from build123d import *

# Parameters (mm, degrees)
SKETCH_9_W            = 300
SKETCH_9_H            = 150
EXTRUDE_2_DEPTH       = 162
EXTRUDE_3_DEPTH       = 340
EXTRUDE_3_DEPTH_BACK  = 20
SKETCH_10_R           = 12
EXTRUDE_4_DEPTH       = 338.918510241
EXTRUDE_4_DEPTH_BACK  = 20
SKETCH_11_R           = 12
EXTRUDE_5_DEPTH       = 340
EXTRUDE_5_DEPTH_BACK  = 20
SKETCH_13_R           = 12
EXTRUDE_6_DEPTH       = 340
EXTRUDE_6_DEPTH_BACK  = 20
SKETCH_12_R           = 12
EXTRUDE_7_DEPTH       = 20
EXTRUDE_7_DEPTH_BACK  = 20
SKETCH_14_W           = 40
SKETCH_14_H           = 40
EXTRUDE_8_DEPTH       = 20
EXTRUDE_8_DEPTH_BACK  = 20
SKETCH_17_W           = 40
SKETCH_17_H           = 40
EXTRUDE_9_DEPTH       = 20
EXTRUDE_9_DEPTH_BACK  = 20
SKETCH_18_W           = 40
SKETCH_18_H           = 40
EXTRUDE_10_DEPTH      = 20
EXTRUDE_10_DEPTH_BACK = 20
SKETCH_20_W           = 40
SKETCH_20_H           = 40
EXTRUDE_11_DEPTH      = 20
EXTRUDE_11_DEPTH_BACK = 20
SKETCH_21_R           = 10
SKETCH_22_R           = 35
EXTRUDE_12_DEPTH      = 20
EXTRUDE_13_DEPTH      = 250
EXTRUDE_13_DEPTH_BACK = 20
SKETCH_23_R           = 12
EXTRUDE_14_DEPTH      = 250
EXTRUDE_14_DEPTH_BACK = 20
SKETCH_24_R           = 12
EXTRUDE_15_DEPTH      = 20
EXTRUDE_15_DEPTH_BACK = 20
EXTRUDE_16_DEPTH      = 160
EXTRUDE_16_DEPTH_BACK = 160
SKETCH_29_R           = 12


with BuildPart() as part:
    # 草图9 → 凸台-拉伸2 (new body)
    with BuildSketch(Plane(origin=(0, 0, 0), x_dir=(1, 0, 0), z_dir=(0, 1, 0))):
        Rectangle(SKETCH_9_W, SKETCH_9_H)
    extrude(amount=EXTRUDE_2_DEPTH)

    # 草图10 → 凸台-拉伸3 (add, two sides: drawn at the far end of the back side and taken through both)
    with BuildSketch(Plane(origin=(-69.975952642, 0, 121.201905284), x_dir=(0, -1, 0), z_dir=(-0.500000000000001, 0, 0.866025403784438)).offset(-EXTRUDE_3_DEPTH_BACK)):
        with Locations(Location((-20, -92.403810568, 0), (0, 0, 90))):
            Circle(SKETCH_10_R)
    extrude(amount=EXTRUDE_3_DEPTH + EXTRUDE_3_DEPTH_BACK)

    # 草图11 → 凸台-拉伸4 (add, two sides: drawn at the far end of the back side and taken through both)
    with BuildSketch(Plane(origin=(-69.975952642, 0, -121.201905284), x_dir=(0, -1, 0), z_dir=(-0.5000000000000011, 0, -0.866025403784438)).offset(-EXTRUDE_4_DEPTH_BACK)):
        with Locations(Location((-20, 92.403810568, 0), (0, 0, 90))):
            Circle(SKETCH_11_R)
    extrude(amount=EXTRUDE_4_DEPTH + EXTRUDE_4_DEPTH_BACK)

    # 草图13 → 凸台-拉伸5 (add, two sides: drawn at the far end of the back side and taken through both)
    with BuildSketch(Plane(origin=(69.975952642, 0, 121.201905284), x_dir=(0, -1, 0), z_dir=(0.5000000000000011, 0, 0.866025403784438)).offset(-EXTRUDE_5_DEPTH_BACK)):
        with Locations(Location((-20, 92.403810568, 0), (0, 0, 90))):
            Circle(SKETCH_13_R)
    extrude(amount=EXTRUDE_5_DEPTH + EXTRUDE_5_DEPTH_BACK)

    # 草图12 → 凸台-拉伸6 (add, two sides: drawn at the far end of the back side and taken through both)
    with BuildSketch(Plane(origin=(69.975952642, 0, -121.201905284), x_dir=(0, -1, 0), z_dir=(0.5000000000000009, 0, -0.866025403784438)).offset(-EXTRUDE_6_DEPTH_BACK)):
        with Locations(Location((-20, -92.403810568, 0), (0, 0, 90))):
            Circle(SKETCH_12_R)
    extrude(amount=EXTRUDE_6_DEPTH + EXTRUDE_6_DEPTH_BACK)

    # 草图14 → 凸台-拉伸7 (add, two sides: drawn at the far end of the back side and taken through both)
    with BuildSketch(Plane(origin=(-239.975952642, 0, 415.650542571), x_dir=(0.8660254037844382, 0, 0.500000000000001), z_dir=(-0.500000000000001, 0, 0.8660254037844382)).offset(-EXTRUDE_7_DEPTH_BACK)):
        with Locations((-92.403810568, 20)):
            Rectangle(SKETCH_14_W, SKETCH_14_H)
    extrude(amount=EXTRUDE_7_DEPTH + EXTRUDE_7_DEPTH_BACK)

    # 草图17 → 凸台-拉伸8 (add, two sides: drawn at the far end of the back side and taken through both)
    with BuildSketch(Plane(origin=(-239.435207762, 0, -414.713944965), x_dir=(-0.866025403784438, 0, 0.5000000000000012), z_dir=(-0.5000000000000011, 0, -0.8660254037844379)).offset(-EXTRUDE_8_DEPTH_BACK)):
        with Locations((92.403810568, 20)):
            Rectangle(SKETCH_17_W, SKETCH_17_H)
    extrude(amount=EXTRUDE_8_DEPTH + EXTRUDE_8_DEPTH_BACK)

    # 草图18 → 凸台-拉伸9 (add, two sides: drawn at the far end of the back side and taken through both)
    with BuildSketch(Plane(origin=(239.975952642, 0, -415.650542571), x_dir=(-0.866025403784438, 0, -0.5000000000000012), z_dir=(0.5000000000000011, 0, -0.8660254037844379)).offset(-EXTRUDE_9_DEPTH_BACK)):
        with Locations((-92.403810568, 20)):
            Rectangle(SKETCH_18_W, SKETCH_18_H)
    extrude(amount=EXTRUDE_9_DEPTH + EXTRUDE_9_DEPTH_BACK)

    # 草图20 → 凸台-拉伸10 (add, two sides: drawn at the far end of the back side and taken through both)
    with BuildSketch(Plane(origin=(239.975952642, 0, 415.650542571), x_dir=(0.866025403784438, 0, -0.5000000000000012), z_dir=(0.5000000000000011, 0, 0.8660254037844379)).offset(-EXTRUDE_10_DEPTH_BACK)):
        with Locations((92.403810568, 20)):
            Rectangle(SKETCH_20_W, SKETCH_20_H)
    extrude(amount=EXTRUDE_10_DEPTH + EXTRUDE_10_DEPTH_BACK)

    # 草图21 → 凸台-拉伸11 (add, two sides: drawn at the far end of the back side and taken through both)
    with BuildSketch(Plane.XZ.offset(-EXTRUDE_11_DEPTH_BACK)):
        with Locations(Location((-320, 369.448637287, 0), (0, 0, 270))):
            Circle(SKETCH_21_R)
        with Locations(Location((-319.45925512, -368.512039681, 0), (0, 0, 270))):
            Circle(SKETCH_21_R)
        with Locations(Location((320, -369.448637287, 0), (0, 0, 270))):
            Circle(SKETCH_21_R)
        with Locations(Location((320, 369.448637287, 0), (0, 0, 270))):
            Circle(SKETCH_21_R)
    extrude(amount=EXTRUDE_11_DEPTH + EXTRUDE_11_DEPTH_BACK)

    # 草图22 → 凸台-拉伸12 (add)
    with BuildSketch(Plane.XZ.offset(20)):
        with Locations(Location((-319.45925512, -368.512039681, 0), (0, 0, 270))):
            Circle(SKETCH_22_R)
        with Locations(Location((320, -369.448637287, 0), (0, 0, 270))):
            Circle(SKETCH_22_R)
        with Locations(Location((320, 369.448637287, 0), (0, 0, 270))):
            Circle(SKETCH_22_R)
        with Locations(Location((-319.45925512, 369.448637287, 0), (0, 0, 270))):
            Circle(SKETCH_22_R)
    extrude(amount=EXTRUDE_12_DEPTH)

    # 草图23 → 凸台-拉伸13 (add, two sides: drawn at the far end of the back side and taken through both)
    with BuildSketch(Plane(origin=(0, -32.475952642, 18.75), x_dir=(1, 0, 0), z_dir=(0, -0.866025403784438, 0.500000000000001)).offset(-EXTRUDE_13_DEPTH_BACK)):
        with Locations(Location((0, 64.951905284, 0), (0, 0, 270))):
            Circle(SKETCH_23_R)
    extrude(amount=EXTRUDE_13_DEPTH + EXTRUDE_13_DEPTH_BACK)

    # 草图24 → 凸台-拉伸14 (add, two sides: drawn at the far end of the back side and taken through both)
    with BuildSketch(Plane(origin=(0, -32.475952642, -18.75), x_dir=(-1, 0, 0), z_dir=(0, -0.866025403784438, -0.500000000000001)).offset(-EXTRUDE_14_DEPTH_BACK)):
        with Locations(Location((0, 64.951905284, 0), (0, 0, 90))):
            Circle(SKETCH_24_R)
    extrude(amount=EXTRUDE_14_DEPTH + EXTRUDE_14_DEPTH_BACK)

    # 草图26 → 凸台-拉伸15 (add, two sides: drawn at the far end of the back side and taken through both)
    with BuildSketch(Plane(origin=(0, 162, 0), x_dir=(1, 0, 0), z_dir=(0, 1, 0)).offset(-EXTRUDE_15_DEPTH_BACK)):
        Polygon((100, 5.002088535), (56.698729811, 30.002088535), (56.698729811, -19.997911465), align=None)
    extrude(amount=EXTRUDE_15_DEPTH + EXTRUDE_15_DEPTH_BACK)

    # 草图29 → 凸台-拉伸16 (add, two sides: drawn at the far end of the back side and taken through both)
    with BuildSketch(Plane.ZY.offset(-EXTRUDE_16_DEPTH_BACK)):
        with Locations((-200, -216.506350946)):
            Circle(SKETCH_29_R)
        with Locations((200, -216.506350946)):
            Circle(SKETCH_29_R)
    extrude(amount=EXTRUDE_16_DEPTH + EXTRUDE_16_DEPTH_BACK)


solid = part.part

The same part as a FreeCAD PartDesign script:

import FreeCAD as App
import Part
import Sketcher
from FreeCAD import Vector
Q = App.Units.Quantity

doc = App.newDocument("Part")
params = doc.addObject("Spreadsheet::Sheet", "Params")
for row, (alias, value) in enumerate([
    ("sketch1_width", "300 mm"),
    ("sketch1_height", "150 mm"),
    ("pad1_length", "162 mm"),
    ("sketch2_diameter", "24 mm"),
    ("pad2_length", "340 mm"),
    ("pad2_length2", "20 mm"),
    ("sketch3_diameter", "24 mm"),
    ("pad3_length", "338.91851 mm"),
    ("pad3_length2", "20 mm"),
    ("sketch4_diameter", "24 mm"),
    ("pad4_length", "340 mm"),
    ("pad4_length2", "20 mm"),
    ("sketch5_diameter", "24 mm"),
    ("pad5_length", "340 mm"),
    ("pad5_length2", "20 mm"),
    ("sketch6_width", "40 mm"),
    ("pad6_length", "20 mm"),
    ("pad6_length2", "20 mm"),
    ("sketch7_width", "40 mm"),
    ("pad7_length", "20 mm"),
    ("pad7_length2", "20 mm"),
    ("sketch8_width", "40 mm"),
    ("pad8_length", "20 mm"),
    ("pad8_length2", "20 mm"),
    ("sketch9_width", "40 mm"),
    ("pad9_length", "20 mm"),
    ("pad9_length2", "20 mm"),
    ("sketch10_diameter", "20 mm"),
    ("pad10_length", "20 mm"),
    ("pad10_length2", "20 mm"),
    ("sketch11_diameter", "70 mm"),
    ("pad11_length", "20 mm"),
    ("sketch12_diameter", "24 mm"),
    ("pad12_length", "250 mm"),
    ("pad12_length2", "20 mm"),
    ("sketch13_diameter", "24 mm"),
    ("pad13_length", "250 mm"),
    ("pad13_length2", "20 mm"),
    ("sketch14_height", "50 mm"),
    ("pad14_length", "20 mm"),
    ("pad14_length2", "20 mm"),
    ("sketch15_diameter", "24 mm"),
    ("pad15_length", "160 mm"),
    ("pad15_length2", "160 mm"),
], start=1):
    params.set(f"A{row}", alias)
    params.set(f"B{row}", "=" + value)
    params.setAlias(f"B{row}", alias)

body = doc.addObject("PartDesign::Body", "Body")

# Sketch on XZ plane
sketch1 = body.newObject("Sketcher::SketchObject", "Sketch")
sketch1.AttachmentSupport = (doc.getObject("XZ_Plane"), [""])
sketch1.MapMode = "FlatFace"
sketch1.addGeometry([
    Part.LineSegment(Vector(-150, -75, 0), Vector(-150, 75, 0)),
    Part.LineSegment(Vector(-150, 75, 0), Vector(150, 75, 0)),
    Part.LineSegment(Vector(150, 75, 0), Vector(150, -75, 0)),
    Part.LineSegment(Vector(150, -75, 0), Vector(-150, -75, 0)),
], False)
sketch1.addConstraint([
    Sketcher.Constraint("Coincident", 0, 2, 1, 1),
    Sketcher.Constraint("Coincident", 1, 2, 2, 1),
    Sketcher.Constraint("Coincident", 2, 2, 3, 1),
    Sketcher.Constraint("Coincident", 3, 2, 0, 1),
    Sketcher.Constraint("Vertical", 0),
    Sketcher.Constraint("Horizontal", 1),
    Sketcher.Constraint("Vertical", 2),
    Sketcher.Constraint("Horizontal", 3),
    Sketcher.Constraint("Symmetric", 0, 2, 2, 2, -1, 1),
    Sketcher.Constraint("DistanceX", 1, 1, 1, 2, Q("300 mm")),
    Sketcher.Constraint("DistanceY", 0, 1, 0, 2, Q("150 mm")),
])
sketch1.setExpression("Constraints[9]", "Params.sketch1_width")
sketch1.setExpression("Constraints[10]", "Params.sketch1_height")
pad1 = body.newObject("PartDesign::Pad", "Pad")
pad1.Profile = sketch1
pad1.setExpression("Length", "Params.pad1_length")
pad1.Reversed = True

# Sketch on an angled plane
sketch2 = body.newObject("Sketcher::SketchObject", "Sketch001")
sketch2.Placement = App.Placement(Vector(-69.975953, 0, 121.201905), App.Rotation(Vector(0, -1, 0), Vector(0.866025404, 0, 0.5), Vector(-0.5, 0, 0.866025404), "ZXY"))
sketch2.addGeometry(Part.Circle(Vector(-20, -92, 0), Vector(0, 0, 1), 12), False)
sketch2.addConstraint([
    Sketcher.Constraint("Diameter", 0, Q("24 mm")),
    Sketcher.Constraint("DistanceX", 0, 3, -1, 1, Q("20 mm")),
    Sketcher.Constraint("DistanceY", 0, 3, -1, 1, Q("92.403811 mm")),
])
sketch2.setExpression("Constraints[0]", "Params.sketch2_diameter")
pad2 = body.newObject("PartDesign::Pad", "Pad001")
pad2.Profile = sketch2
pad2.Type = "TwoLengths"
pad2.setExpression("Length", "Params.pad2_length")
pad2.setExpression("Length2", "Params.pad2_length2")

# Sketch on an angled plane
sketch3 = body.newObject("Sketcher::SketchObject", "Sketch002")
sketch3.Placement = App.Placement(Vector(-69.975953, 0, -121.201905), App.Rotation(Vector(0, -1, 0), Vector(-0.866025404, 0, 0.5), Vector(-0.5, 0, -0.866025404), "ZXY"))
sketch3.addGeometry(Part.Circle(Vector(-20, 92, 0), Vector(0, 0, 1), 12), False)
sketch3.addConstraint([
    Sketcher.Constraint("Diameter", 0, Q("24 mm")),
    Sketcher.Constraint("DistanceX", 0, 3, -1, 1, Q("20 mm")),
    Sketcher.Constraint("DistanceY", -1, 1, 0, 3, Q("92.403811 mm")),
])
sketch3.setExpression("Constraints[0]", "Params.sketch3_diameter")
pad3 = body.newObject("PartDesign::Pad", "Pad002")
pad3.Profile = sketch3
pad3.Type = "TwoLengths"
pad3.setExpression("Length", "Params.pad3_length")
pad3.setExpression("Length2", "Params.pad3_length2")

# Sketch on an angled plane
sketch4 = body.newObject("Sketcher::SketchObject", "Sketch003")
sketch4.Placement = App.Placement(Vector(69.975953, 0, 121.201905), App.Rotation(Vector(0, -1, 0), Vector(0.866025404, 0, -0.5), Vector(0.5, 0, 0.866025404), "ZXY"))
sketch4.addGeometry(Part.Circle(Vector(-20, 92, 0), Vector(0, 0, 1), 12), False)
sketch4.addConstraint([
    Sketcher.Constraint("Diameter", 0, Q("24 mm")),
    Sketcher.Constraint("DistanceX", 0, 3, -1, 1, Q("20 mm")),
    Sketcher.Constraint("DistanceY", -1, 1, 0, 3, Q("92.403811 mm")),
])
sketch4.setExpression("Constraints[0]", "Params.sketch4_diameter")
pad4 = body.newObject("PartDesign::Pad", "Pad003")
pad4.Profile = sketch4
pad4.Type = "TwoLengths"
pad4.setExpression("Length", "Params.pad4_length")
pad4.setExpression("Length2", "Params.pad4_length2")

# Sketch on an angled plane
sketch5 = body.newObject("Sketcher::SketchObject", "Sketch004")
sketch5.Placement = App.Placement(Vector(69.975953, 0, -121.201905), App.Rotation(Vector(0, -1, 0), Vector(-0.866025404, 0, -0.5), Vector(0.5, 0, -0.866025404), "ZXY"))
sketch5.addGeometry(Part.Circle(Vector(-20, -92, 0), Vector(0, 0, 1), 12), False)
sketch5.addConstraint([
    Sketcher.Constraint("Diameter", 0, Q("24 mm")),
    Sketcher.Constraint("DistanceX", 0, 3, -1, 1, Q("20 mm")),
    Sketcher.Constraint("DistanceY", 0, 3, -1, 1, Q("92.403811 mm")),
])
sketch5.setExpression("Constraints[0]", "Params.sketch5_diameter")
pad5 = body.newObject("PartDesign::Pad", "Pad004")
pad5.Profile = sketch5
pad5.Type = "TwoLengths"
pad5.setExpression("Length", "Params.pad5_length")
pad5.setExpression("Length2", "Params.pad5_length2")

# Sketch on an angled plane
sketch6 = body.newObject("Sketcher::SketchObject", "Sketch005")
sketch6.Placement = App.Placement(Vector(-239.975953, 0, 415.650543), App.Rotation(Vector(0.866025404, 0, 0.5), Vector(0, 1, 0), Vector(-0.5, 0, 0.866025404), "ZXY"))
sketch6.addGeometry([
    Part.LineSegment(Vector(-112, 40, 0), Vector(-112, 0, 0)),
    Part.LineSegment(Vector(-112, 0, 0), Vector(-72, 0, 0)),
    Part.LineSegment(Vector(-72, 0, 0), Vector(-72, 40, 0)),
    Part.LineSegment(Vector(-72, 40, 0), Vector(-112, 40, 0)),
], False)
sketch6.addConstraint([
    Sketcher.Constraint("Coincident", 0, 2, 1, 1),
    Sketcher.Constraint("Coincident", 1, 2, 2, 1),
    Sketcher.Constraint("Coincident", 2, 2, 3, 1),
    Sketcher.Constraint("Coincident", 3, 2, 0, 1),
    Sketcher.Constraint("Vertical", 0),
    Sketcher.Constraint("Horizontal", 1),
    Sketcher.Constraint("Vertical", 2),
    Sketcher.Constraint("Horizontal", 3),
    Sketcher.Constraint("PointOnObject", 0, 2, -1),
    Sketcher.Constraint("Equal", 3, 0),
    Sketcher.Constraint("DistanceX", 1, 1, 1, 2, Q("40 mm")),
    Sketcher.Constraint("DistanceX", 0, 2, -1, 1, Q("112.403811 mm")),
])
sketch6.setExpression("Constraints[10]", "Params.sketch6_width")
pad6 = body.newObject("PartDesign::Pad", "Pad005")
pad6.Profile = sketch6
pad6.Type = "TwoLengths"
pad6.setExpression("Length", "Params.pad6_length")
pad6.setExpression("Length2", "Params.pad6_length2")

# Sketch on an angled plane
sketch7 = body.newObject("Sketcher::SketchObject", "Sketch006")
sketch7.Placement = App.Placement(Vector(-239.435208, 0, -414.713945), App.Rotation(Vector(-0.866025404, 0, 0.5), Vector(0, 1, 0), Vector(-0.5, 0, -0.866025404), "ZXY"))
sketch7.addGeometry([
    Part.LineSegment(Vector(72, 40, 0), Vector(72, 0, 0)),
    Part.LineSegment(Vector(72, 0, 0), Vector(112, 0, 0)),
    Part.LineSegment(Vector(112, 0, 0), Vector(112, 40, 0)),
    Part.LineSegment(Vector(112, 40, 0), Vector(72, 40, 0)),
], False)
sketch7.addConstraint([
    Sketcher.Constraint("Coincident", 0, 2, 1, 1),
    Sketcher.Constraint("Coincident", 1, 2, 2, 1),
    Sketcher.Constraint("Coincident", 2, 2, 3, 1),
    Sketcher.Constraint("Coincident", 3, 2, 0, 1),
    Sketcher.Constraint("Vertical", 0),
    Sketcher.Constraint("Horizontal", 1),
    Sketcher.Constraint("Vertical", 2),
    Sketcher.Constraint("Horizontal", 3),
    Sketcher.Constraint("PointOnObject", 0, 2, -1),
    Sketcher.Constraint("Equal", 3, 0),
    Sketcher.Constraint("DistanceX", 1, 1, 1, 2, Q("40 mm")),
    Sketcher.Constraint("DistanceX", -1, 1, 0, 2, Q("72.403811 mm")),
])
sketch7.setExpression("Constraints[10]", "Params.sketch7_width")
pad7 = body.newObject("PartDesign::Pad", "Pad006")
pad7.Profile = sketch7
pad7.Type = "TwoLengths"
pad7.setExpression("Length", "Params.pad7_length")
pad7.setExpression("Length2", "Params.pad7_length2")

# Sketch on an angled plane
sketch8 = body.newObject("Sketcher::SketchObject", "Sketch007")
sketch8.Placement = App.Placement(Vector(239.975953, 0, -415.650543), App.Rotation(Vector(-0.866025404, 0, -0.5), Vector(0, 1, 0), Vector(0.5, 0, -0.866025404), "ZXY"))
sketch8.addGeometry([
    Part.LineSegment(Vector(-112, 40, 0), Vector(-112, 0, 0)),
    Part.LineSegment(Vector(-112, 0, 0), Vector(-72, 0, 0)),
    Part.LineSegment(Vector(-72, 0, 0), Vector(-72, 40, 0)),
    Part.LineSegment(Vector(-72, 40, 0), Vector(-112, 40, 0)),
], False)
sketch8.addConstraint([
    Sketcher.Constraint("Coincident", 0, 2, 1, 1),
    Sketcher.Constraint("Coincident", 1, 2, 2, 1),
    Sketcher.Constraint("Coincident", 2, 2, 3, 1),
    Sketcher.Constraint("Coincident", 3, 2, 0, 1),
    Sketcher.Constraint("Vertical", 0),
    Sketcher.Constraint("Horizontal", 1),
    Sketcher.Constraint("Vertical", 2),
    Sketcher.Constraint("Horizontal", 3),
    Sketcher.Constraint("PointOnObject", 0, 2, -1),
    Sketcher.Constraint("Equal", 3, 0),
    Sketcher.Constraint("DistanceX", 1, 1, 1, 2, Q("40 mm")),
    Sketcher.Constraint("DistanceX", 0, 2, -1, 1, Q("112.403811 mm")),
])
sketch8.setExpression("Constraints[10]", "Params.sketch8_width")
pad8 = body.newObject("PartDesign::Pad", "Pad007")
pad8.Profile = sketch8
pad8.Type = "TwoLengths"
pad8.setExpression("Length", "Params.pad8_length")
pad8.setExpression("Length2", "Params.pad8_length2")

# Sketch on an angled plane
sketch9 = body.newObject("Sketcher::SketchObject", "Sketch008")
sketch9.Placement = App.Placement(Vector(239.975953, 0, 415.650543), App.Rotation(Vector(0.866025404, 0, -0.5), Vector(0, 1, 0), Vector(0.5, 0, 0.866025404), "ZXY"))
sketch9.addGeometry([
    Part.LineSegment(Vector(72, 40, 0), Vector(72, 0, 0)),
    Part.LineSegment(Vector(72, 0, 0), Vector(112, 0, 0)),
    Part.LineSegment(Vector(112, 0, 0), Vector(112, 40, 0)),
    Part.LineSegment(Vector(112, 40, 0), Vector(72, 40, 0)),
], False)
sketch9.addConstraint([
    Sketcher.Constraint("Coincident", 0, 2, 1, 1),
    Sketcher.Constraint("Coincident", 1, 2, 2, 1),
    Sketcher.Constraint("Coincident", 2, 2, 3, 1),
    Sketcher.Constraint("Coincident", 3, 2, 0, 1),
    Sketcher.Constraint("Vertical", 0),
    Sketcher.Constraint("Horizontal", 1),
    Sketcher.Constraint("Vertical", 2),
    Sketcher.Constraint("Horizontal", 3),
    Sketcher.Constraint("PointOnObject", 0, 2, -1),
    Sketcher.Constraint("Equal", 3, 0),
    Sketcher.Constraint("DistanceX", 1, 1, 1, 2, Q("40 mm")),
    Sketcher.Constraint("DistanceX", -1, 1, 0, 2, Q("72.403811 mm")),
])
sketch9.setExpression("Constraints[10]", "Params.sketch9_width")
pad9 = body.newObject("PartDesign::Pad", "Pad008")
pad9.Profile = sketch9
pad9.Type = "TwoLengths"
pad9.setExpression("Length", "Params.pad9_length")
pad9.setExpression("Length2", "Params.pad9_length2")

# Sketch on XZ plane
sketch10 = body.newObject("Sketcher::SketchObject", "Sketch009")
sketch10.AttachmentSupport = (doc.getObject("XZ_Plane"), [""])
sketch10.MapMode = "FlatFace"
sketch10.addGeometry([
    Part.Circle(Vector(-320, 369, 0), Vector(0, 0, 1), 10),
    Part.Circle(Vector(-319, -369, 0), Vector(0, 0, 1), 10),
    Part.Circle(Vector(320, -369, 0), Vector(0, 0, 1), 10),
    Part.Circle(Vector(320, 369, 0), Vector(0, 0, 1), 10),
], False)
sketch10.addConstraint([
    Sketcher.Constraint("Equal", 0, 1),
    Sketcher.Constraint("Equal", 1, 2),
    Sketcher.Constraint("Equal", 2, 3),
    Sketcher.Constraint("Symmetric", 0, 3, 2, 3, -1, 1),
    Sketcher.Constraint("Symmetric", 0, 3, 3, 3, -2),
    Sketcher.Constraint("Diameter", 0, Q("20 mm")),
    Sketcher.Constraint("DistanceX", 0, 3, -1, 1, Q("320 mm")),
    Sketcher.Constraint("DistanceY", 1, 3, -1, 1, Q("368.51204 mm")),
    Sketcher.Constraint("DistanceY", -1, 1, 0, 3, Q("369.448637 mm")),
    Sketcher.Constraint("DistanceX", 1, 3, -1, 1, Q("319.459255 mm")),
])
sketch10.setExpression("Constraints[5]", "Params.sketch10_diameter")
pad10 = body.newObject("PartDesign::Pad", "Pad009")
pad10.Profile = sketch10
pad10.Type = "TwoLengths"
pad10.setExpression("Length", "Params.pad10_length")
pad10.setExpression("Length2", "Params.pad10_length2")

# Sketch on XZ plane
sketch11 = body.newObject("Sketcher::SketchObject", "Sketch010")
sketch11.AttachmentSupport = (doc.getObject("XZ_Plane"), [""])
sketch11.MapMode = "FlatFace"
sketch11.AttachmentOffset = App.Placement(Vector(0, 0, 20), App.Rotation())
sketch11.addGeometry([
    Part.Circle(Vector(-319, -369, 0), Vector(0, 0, 1), 35),
    Part.Circle(Vector(320, -369, 0), Vector(0, 0, 1), 35),
    Part.Circle(Vector(320, 369, 0), Vector(0, 0, 1), 35),
    Part.Circle(Vector(-319, 369, 0), Vector(0, 0, 1), 35),
], False)
sketch11.addConstraint([
    Sketcher.Constraint("Equal", 0, 1),
    Sketcher.Constraint("Equal", 1, 2),
    Sketcher.Constraint("Equal", 2, 3),
    Sketcher.Constraint("Symmetric", 1, 3, 2, 3, -1),
    Sketcher.Constraint("Horizontal", 2, 3, 3, 3),
    Sketcher.Constraint("Vertical", 0, 3, 3, 3),
    Sketcher.Constraint("Diameter", 0, Q("70 mm")),
    Sketcher.Constraint("DistanceX", -1, 1, 1, 3, Q("320 mm")),
    Sketcher.Constraint("DistanceY", 0, 3, -1, 1, Q("368.51204 mm")),
    Sketcher.Constraint("DistanceX", 0, 3, -1, 1, Q("319.459255 mm")),
    Sketcher.Constraint("DistanceY", 1, 3, -1, 1, Q("369.448637 mm")),
])
sketch11.setExpression("Constraints[6]", "Params.sketch11_diameter")
pad11 = body.newObject("PartDesign::Pad", "Pad010")
pad11.Profile = sketch11
pad11.setExpression("Length", "Params.pad11_length")

# Sketch on an angled plane
sketch12 = body.newObject("Sketcher::SketchObject", "Sketch011")
sketch12.Placement = App.Placement(Vector(0, -32.475953, 18.75), App.Rotation(Vector(1, 0, 0), Vector(0, 0.5, 0.866025404), Vector(0, -0.866025404, 0.5), "ZXY"))
sketch12.addGeometry(Part.Circle(Vector(0, 65, 0), Vector(0, 0, 1), 12), False)
sketch12.addConstraint([
    Sketcher.Constraint("PointOnObject", 0, 3, -2),
    Sketcher.Constraint("Diameter", 0, Q("24 mm")),
    Sketcher.Constraint("DistanceY", -1, 1, 0, 3, Q("64.951905 mm")),
])
sketch12.setExpression("Constraints[1]", "Params.sketch12_diameter")
pad12 = body.newObject("PartDesign::Pad", "Pad011")
pad12.Profile = sketch12
pad12.Type = "TwoLengths"
pad12.setExpression("Length", "Params.pad12_length")
pad12.setExpression("Length2", "Params.pad12_length2")

# Sketch on an angled plane
sketch13 = body.newObject("Sketcher::SketchObject", "Sketch012")
sketch13.Placement = App.Placement(Vector(0, -32.475953, -18.75), App.Rotation(Vector(-1, 0, 0), Vector(0, 0.5, -0.866025404), Vector(0, -0.866025404, -0.5), "ZXY"))
sketch13.addGeometry(Part.Circle(Vector(0, 65, 0), Vector(0, 0, 1), 12), False)
sketch13.addConstraint([
    Sketcher.Constraint("PointOnObject", 0, 3, -2),
    Sketcher.Constraint("Diameter", 0, Q("24 mm")),
    Sketcher.Constraint("DistanceY", -1, 1, 0, 3, Q("64.951905 mm")),
])
sketch13.setExpression("Constraints[1]", "Params.sketch13_diameter")
pad13 = body.newObject("PartDesign::Pad", "Pad012")
pad13.Profile = sketch13
pad13.Type = "TwoLengths"
pad13.setExpression("Length", "Params.pad13_length")
pad13.setExpression("Length2", "Params.pad13_length2")

# Sketch on XZ plane
sketch14 = body.newObject("Sketcher::SketchObject", "Sketch013")
sketch14.AttachmentSupport = (doc.getObject("XZ_Plane"), [""])
sketch14.MapMode = "FlatFace"
sketch14.AttachmentOffset = App.Placement(Vector(0, 0, -162), App.Rotation())
sketch14.addGeometry([
    Part.LineSegment(Vector(100, -5, 0), Vector(57, -30, 0)),
    Part.LineSegment(Vector(57, -30, 0), Vector(57, 20, 0)),
    Part.LineSegment(Vector(57, 20, 0), Vector(100, -5, 0)),
], False)
sketch14.addConstraint([
    Sketcher.Constraint("Coincident", 0, 2, 1, 1),
    Sketcher.Constraint("Coincident", 1, 2, 2, 1),
    Sketcher.Constraint("Coincident", 2, 2, 0, 1),
    Sketcher.Constraint("Vertical", 1),
    Sketcher.Constraint("Equal", 0, 2),
    Sketcher.Constraint("DistanceY", 1, 1, 1, 2, Q("50 mm")),
    Sketcher.Constraint("Angle", 0, Q("-150 deg")),
    Sketcher.Constraint("DistanceX", -1, 1, 2, 2, Q("100 mm")),
    Sketcher.Constraint("DistanceY", 0, 2, -1, 1, Q("30.002089 mm")),
])
sketch14.setExpression("Constraints[5]", "Params.sketch14_height")
pad14 = body.newObject("PartDesign::Pad", "Pad013")
pad14.Profile = sketch14
pad14.Type = "TwoLengths"
pad14.setExpression("Length", "Params.pad14_length")
pad14.setExpression("Length2", "Params.pad14_length2")
pad14.Reversed = True

# Sketch on YZ plane
sketch15 = body.newObject("Sketcher::SketchObject", "Sketch014")
sketch15.AttachmentSupport = (doc.getObject("YZ_Plane"), [""])
sketch15.MapMode = "FlatFace"
sketch15.addGeometry([
    Part.Circle(Vector(-217, -200, 0), Vector(0, 0, 1), 12),
    Part.Circle(Vector(-217, 200, 0), Vector(0, 0, 1), 12),
], False)
sketch15.addConstraint([
    Sketcher.Constraint("Equal", 0, 1),
    Sketcher.Constraint("Symmetric", 0, 3, 1, 3, -1),
    Sketcher.Constraint("Diameter", 0, Q("24 mm")),
    Sketcher.Constraint("DistanceY", 0, 3, -1, 1, Q("200 mm")),
    Sketcher.Constraint("DistanceX", 0, 3, -1, 1, Q("216.506351 mm")),
])
sketch15.setExpression("Constraints[2]", "Params.sketch15_diameter")
pad15 = body.newObject("PartDesign::Pad", "Pad014")
pad15.Profile = sketch15
pad15.Type = "TwoLengths"
pad15.setExpression("Length", "Params.pad15_length")
pad15.setExpression("Length2", "Params.pad15_length2")
pad15.Reversed = True

doc.recompute()
